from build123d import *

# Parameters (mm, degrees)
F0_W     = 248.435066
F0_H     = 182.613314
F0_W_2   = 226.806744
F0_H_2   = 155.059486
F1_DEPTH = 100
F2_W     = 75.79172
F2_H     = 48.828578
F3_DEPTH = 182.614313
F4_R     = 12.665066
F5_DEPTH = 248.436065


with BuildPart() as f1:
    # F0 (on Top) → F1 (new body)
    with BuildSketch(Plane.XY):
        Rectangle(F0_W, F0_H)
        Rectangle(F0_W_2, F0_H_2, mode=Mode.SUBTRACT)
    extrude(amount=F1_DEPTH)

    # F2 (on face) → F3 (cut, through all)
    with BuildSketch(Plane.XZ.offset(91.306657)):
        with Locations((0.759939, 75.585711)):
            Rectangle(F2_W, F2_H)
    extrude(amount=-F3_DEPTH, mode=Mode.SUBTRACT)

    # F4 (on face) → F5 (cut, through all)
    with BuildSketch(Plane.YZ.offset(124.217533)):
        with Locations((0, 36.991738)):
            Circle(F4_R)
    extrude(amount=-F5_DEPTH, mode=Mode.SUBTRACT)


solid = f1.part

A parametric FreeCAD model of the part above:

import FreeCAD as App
import Part
import Sketcher

V = App.Vector

doc = App.newDocument("Part")
body = doc.addObject("PartDesign::Body", "Body")

# Sketch on XY plane
sketch1 = body.newObject("Sketcher::SketchObject", "Sketch")
sketch1.AttachmentSupport = (doc.getObject("XY_Plane"), [""])
sketch1.MapMode = "FlatFace"
sketch1.addGeometry([
    Part.LineSegment(V(-124.217533, 91.306657, 0), V(-124.217533, -91.306657, 0)),  # 0
    Part.LineSegment(V(-124.217533, -91.306657, 0), V(124.217533, -91.306657, 0)),  # 1
    Part.LineSegment(V(124.217533, -91.306657, 0), V(124.217533, 91.306657, 0)),  # 2
    Part.LineSegment(V(124.217533, 91.306657, 0), V(-124.217533, 91.306657, 0)),  # 3
    Part.LineSegment(V(113.403372, -77.529743, 0), V(-113.403372, -77.529743, 0)),  # 4
    Part.LineSegment(V(-113.403372, -77.529743, 0), V(-113.403372, 77.529743, 0)),  # 5
    Part.LineSegment(V(-113.403372, 77.529743, 0), V(113.403372, 77.529743, 0)),  # 6
    Part.LineSegment(V(113.403372, 77.529743, 0), V(113.403372, -77.529743, 0)),  # 7
], False)
sketch1.addConstraint([
    Sketcher.Constraint("Coincident", 0, 2, 1, 1),
    Sketcher.Constraint("Coincident", 1, 2, 2, 1),
    Sketcher.Constraint("Coincident", 2, 2, 3, 1),
    Sketcher.Constraint("Coincident", 3, 2, 0, 1),
    Sketcher.Constraint("Coincident", 4, 2, 5, 1),
    Sketcher.Constraint("Coincident", 5, 2, 6, 1),
    Sketcher.Constraint("Coincident", 6, 2, 7, 1),
    Sketcher.Constraint("Coincident", 7, 2, 4, 1),
    Sketcher.Constraint("Vertical", 0),
    Sketcher.Constraint("Horizontal", 1),
    Sketcher.Constraint("Vertical", 2),
    Sketcher.Constraint("Horizontal", 3),
    Sketcher.Constraint("Horizontal", 4),
    Sketcher.Constraint("Vertical", 5),
    Sketcher.Constraint("Horizontal", 6),
    Sketcher.Constraint("Vertical", 7),
    Sketcher.Constraint("Symmetric", 0, 2, 2, 2, -1, 1),
    Sketcher.Constraint("Symmetric", 4, 2, 6, 2, -1, 1),
    Sketcher.Constraint("DistanceY", 4, 2, 3, 2, 168.8364),
    Sketcher.Constraint("DistanceX", 1, 1, 1, 2, 248.435066),
    Sketcher.Constraint("DistanceX", 4, 2, 4, 1, 226.806744),
    Sketcher.Constraint("DistanceY", 0, 2, 0, 1, 182.613314),
])
pad1 = body.newObject("PartDesign::Pad", "Pad")
pad1.Profile = sketch1
pad1.Length = 100

# Sketch on XZ plane
sketch2 = body.newObject("Sketcher::SketchObject", "Sketch001")
sketch2.AttachmentSupport = (doc.getObject("XZ_Plane"), [""])
sketch2.MapMode = "FlatFace"
sketch2.AttachmentOffset = App.Placement(V(0, 0, 91.306657), App.Rotation())
sketch2.addGeometry([
    Part.LineSegment(V(-37.135921, 100, 0), V(-37.135921, 51.171422, 0)),
    Part.LineSegment(V(-37.135921, 51.171422, 0), V(38.655799, 51.171422, 0)),
    Part.LineSegment(V(38.655799, 51.171422, 0), V(38.655799, 100, 0)),
    Part.LineSegment(V(38.655799, 100, 0), V(-37.135921, 100, 0)),
], False)
sketch2.addConstraint([
    Sketcher.Constraint("Coincident", 0, 2, 1, 1),
    Sketcher.Constraint("Coincident", 1, 2, 2, 1),
    Sketcher.Constraint("Coincident", 2, 2, 3, 1),
    Sketcher.Constraint("Coincident", 3, 2, 0, 1),
    Sketcher.Constraint("Vertical", 0),
    Sketcher.Constraint("Horizontal", 1),
    Sketcher.Constraint("Vertical", 2),
    Sketcher.Constraint("Horizontal", 3),
    Sketcher.Constraint("DistanceY", -1, 1, 2, 2, 100.0),
    Sketcher.Constraint("DistanceX", 1, 1, 1, 2, 75.79172),
    Sketcher.Constraint("DistanceX", -1, 1, 1, 2, 38.655799),
    Sketcher.Constraint("DistanceY", 0, 2, 0, 1, 48.828578),
])
pocket1 = body.newObject("PartDesign::Pocket", "Pocket")
pocket1.Profile = sketch2
pocket1.Type = "ThroughAll"

# Sketch on YZ plane
sketch3 = body.newObject("Sketcher::SketchObject", "Sketch002")
sketch3.AttachmentSupport = (doc.getObject("YZ_Plane"), [""])
sketch3.MapMode = "FlatFace"
sketch3.AttachmentOffset = App.Placement(V(0, 0, 124.217533), App.Rotation())
sketch3.addGeometry(Part.Circle(V(0, 36.991738, 0), V(0, 0, 1), 12.665066), False)
sketch3.addConstraint([
    Sketcher.Constraint("PointOnObject", 0, 3, -2),
    Sketcher.Constraint("Diameter", 0, 25.330132),
    Sketcher.Constraint("DistanceY", -1, 1, 0, 3, 36.991738),
])
pocket2 = body.newObject("PartDesign::Pocket", "Pocket001")
pocket2.Profile = sketch3
pocket2.Type = "ThroughAll"

doc.recompute()
